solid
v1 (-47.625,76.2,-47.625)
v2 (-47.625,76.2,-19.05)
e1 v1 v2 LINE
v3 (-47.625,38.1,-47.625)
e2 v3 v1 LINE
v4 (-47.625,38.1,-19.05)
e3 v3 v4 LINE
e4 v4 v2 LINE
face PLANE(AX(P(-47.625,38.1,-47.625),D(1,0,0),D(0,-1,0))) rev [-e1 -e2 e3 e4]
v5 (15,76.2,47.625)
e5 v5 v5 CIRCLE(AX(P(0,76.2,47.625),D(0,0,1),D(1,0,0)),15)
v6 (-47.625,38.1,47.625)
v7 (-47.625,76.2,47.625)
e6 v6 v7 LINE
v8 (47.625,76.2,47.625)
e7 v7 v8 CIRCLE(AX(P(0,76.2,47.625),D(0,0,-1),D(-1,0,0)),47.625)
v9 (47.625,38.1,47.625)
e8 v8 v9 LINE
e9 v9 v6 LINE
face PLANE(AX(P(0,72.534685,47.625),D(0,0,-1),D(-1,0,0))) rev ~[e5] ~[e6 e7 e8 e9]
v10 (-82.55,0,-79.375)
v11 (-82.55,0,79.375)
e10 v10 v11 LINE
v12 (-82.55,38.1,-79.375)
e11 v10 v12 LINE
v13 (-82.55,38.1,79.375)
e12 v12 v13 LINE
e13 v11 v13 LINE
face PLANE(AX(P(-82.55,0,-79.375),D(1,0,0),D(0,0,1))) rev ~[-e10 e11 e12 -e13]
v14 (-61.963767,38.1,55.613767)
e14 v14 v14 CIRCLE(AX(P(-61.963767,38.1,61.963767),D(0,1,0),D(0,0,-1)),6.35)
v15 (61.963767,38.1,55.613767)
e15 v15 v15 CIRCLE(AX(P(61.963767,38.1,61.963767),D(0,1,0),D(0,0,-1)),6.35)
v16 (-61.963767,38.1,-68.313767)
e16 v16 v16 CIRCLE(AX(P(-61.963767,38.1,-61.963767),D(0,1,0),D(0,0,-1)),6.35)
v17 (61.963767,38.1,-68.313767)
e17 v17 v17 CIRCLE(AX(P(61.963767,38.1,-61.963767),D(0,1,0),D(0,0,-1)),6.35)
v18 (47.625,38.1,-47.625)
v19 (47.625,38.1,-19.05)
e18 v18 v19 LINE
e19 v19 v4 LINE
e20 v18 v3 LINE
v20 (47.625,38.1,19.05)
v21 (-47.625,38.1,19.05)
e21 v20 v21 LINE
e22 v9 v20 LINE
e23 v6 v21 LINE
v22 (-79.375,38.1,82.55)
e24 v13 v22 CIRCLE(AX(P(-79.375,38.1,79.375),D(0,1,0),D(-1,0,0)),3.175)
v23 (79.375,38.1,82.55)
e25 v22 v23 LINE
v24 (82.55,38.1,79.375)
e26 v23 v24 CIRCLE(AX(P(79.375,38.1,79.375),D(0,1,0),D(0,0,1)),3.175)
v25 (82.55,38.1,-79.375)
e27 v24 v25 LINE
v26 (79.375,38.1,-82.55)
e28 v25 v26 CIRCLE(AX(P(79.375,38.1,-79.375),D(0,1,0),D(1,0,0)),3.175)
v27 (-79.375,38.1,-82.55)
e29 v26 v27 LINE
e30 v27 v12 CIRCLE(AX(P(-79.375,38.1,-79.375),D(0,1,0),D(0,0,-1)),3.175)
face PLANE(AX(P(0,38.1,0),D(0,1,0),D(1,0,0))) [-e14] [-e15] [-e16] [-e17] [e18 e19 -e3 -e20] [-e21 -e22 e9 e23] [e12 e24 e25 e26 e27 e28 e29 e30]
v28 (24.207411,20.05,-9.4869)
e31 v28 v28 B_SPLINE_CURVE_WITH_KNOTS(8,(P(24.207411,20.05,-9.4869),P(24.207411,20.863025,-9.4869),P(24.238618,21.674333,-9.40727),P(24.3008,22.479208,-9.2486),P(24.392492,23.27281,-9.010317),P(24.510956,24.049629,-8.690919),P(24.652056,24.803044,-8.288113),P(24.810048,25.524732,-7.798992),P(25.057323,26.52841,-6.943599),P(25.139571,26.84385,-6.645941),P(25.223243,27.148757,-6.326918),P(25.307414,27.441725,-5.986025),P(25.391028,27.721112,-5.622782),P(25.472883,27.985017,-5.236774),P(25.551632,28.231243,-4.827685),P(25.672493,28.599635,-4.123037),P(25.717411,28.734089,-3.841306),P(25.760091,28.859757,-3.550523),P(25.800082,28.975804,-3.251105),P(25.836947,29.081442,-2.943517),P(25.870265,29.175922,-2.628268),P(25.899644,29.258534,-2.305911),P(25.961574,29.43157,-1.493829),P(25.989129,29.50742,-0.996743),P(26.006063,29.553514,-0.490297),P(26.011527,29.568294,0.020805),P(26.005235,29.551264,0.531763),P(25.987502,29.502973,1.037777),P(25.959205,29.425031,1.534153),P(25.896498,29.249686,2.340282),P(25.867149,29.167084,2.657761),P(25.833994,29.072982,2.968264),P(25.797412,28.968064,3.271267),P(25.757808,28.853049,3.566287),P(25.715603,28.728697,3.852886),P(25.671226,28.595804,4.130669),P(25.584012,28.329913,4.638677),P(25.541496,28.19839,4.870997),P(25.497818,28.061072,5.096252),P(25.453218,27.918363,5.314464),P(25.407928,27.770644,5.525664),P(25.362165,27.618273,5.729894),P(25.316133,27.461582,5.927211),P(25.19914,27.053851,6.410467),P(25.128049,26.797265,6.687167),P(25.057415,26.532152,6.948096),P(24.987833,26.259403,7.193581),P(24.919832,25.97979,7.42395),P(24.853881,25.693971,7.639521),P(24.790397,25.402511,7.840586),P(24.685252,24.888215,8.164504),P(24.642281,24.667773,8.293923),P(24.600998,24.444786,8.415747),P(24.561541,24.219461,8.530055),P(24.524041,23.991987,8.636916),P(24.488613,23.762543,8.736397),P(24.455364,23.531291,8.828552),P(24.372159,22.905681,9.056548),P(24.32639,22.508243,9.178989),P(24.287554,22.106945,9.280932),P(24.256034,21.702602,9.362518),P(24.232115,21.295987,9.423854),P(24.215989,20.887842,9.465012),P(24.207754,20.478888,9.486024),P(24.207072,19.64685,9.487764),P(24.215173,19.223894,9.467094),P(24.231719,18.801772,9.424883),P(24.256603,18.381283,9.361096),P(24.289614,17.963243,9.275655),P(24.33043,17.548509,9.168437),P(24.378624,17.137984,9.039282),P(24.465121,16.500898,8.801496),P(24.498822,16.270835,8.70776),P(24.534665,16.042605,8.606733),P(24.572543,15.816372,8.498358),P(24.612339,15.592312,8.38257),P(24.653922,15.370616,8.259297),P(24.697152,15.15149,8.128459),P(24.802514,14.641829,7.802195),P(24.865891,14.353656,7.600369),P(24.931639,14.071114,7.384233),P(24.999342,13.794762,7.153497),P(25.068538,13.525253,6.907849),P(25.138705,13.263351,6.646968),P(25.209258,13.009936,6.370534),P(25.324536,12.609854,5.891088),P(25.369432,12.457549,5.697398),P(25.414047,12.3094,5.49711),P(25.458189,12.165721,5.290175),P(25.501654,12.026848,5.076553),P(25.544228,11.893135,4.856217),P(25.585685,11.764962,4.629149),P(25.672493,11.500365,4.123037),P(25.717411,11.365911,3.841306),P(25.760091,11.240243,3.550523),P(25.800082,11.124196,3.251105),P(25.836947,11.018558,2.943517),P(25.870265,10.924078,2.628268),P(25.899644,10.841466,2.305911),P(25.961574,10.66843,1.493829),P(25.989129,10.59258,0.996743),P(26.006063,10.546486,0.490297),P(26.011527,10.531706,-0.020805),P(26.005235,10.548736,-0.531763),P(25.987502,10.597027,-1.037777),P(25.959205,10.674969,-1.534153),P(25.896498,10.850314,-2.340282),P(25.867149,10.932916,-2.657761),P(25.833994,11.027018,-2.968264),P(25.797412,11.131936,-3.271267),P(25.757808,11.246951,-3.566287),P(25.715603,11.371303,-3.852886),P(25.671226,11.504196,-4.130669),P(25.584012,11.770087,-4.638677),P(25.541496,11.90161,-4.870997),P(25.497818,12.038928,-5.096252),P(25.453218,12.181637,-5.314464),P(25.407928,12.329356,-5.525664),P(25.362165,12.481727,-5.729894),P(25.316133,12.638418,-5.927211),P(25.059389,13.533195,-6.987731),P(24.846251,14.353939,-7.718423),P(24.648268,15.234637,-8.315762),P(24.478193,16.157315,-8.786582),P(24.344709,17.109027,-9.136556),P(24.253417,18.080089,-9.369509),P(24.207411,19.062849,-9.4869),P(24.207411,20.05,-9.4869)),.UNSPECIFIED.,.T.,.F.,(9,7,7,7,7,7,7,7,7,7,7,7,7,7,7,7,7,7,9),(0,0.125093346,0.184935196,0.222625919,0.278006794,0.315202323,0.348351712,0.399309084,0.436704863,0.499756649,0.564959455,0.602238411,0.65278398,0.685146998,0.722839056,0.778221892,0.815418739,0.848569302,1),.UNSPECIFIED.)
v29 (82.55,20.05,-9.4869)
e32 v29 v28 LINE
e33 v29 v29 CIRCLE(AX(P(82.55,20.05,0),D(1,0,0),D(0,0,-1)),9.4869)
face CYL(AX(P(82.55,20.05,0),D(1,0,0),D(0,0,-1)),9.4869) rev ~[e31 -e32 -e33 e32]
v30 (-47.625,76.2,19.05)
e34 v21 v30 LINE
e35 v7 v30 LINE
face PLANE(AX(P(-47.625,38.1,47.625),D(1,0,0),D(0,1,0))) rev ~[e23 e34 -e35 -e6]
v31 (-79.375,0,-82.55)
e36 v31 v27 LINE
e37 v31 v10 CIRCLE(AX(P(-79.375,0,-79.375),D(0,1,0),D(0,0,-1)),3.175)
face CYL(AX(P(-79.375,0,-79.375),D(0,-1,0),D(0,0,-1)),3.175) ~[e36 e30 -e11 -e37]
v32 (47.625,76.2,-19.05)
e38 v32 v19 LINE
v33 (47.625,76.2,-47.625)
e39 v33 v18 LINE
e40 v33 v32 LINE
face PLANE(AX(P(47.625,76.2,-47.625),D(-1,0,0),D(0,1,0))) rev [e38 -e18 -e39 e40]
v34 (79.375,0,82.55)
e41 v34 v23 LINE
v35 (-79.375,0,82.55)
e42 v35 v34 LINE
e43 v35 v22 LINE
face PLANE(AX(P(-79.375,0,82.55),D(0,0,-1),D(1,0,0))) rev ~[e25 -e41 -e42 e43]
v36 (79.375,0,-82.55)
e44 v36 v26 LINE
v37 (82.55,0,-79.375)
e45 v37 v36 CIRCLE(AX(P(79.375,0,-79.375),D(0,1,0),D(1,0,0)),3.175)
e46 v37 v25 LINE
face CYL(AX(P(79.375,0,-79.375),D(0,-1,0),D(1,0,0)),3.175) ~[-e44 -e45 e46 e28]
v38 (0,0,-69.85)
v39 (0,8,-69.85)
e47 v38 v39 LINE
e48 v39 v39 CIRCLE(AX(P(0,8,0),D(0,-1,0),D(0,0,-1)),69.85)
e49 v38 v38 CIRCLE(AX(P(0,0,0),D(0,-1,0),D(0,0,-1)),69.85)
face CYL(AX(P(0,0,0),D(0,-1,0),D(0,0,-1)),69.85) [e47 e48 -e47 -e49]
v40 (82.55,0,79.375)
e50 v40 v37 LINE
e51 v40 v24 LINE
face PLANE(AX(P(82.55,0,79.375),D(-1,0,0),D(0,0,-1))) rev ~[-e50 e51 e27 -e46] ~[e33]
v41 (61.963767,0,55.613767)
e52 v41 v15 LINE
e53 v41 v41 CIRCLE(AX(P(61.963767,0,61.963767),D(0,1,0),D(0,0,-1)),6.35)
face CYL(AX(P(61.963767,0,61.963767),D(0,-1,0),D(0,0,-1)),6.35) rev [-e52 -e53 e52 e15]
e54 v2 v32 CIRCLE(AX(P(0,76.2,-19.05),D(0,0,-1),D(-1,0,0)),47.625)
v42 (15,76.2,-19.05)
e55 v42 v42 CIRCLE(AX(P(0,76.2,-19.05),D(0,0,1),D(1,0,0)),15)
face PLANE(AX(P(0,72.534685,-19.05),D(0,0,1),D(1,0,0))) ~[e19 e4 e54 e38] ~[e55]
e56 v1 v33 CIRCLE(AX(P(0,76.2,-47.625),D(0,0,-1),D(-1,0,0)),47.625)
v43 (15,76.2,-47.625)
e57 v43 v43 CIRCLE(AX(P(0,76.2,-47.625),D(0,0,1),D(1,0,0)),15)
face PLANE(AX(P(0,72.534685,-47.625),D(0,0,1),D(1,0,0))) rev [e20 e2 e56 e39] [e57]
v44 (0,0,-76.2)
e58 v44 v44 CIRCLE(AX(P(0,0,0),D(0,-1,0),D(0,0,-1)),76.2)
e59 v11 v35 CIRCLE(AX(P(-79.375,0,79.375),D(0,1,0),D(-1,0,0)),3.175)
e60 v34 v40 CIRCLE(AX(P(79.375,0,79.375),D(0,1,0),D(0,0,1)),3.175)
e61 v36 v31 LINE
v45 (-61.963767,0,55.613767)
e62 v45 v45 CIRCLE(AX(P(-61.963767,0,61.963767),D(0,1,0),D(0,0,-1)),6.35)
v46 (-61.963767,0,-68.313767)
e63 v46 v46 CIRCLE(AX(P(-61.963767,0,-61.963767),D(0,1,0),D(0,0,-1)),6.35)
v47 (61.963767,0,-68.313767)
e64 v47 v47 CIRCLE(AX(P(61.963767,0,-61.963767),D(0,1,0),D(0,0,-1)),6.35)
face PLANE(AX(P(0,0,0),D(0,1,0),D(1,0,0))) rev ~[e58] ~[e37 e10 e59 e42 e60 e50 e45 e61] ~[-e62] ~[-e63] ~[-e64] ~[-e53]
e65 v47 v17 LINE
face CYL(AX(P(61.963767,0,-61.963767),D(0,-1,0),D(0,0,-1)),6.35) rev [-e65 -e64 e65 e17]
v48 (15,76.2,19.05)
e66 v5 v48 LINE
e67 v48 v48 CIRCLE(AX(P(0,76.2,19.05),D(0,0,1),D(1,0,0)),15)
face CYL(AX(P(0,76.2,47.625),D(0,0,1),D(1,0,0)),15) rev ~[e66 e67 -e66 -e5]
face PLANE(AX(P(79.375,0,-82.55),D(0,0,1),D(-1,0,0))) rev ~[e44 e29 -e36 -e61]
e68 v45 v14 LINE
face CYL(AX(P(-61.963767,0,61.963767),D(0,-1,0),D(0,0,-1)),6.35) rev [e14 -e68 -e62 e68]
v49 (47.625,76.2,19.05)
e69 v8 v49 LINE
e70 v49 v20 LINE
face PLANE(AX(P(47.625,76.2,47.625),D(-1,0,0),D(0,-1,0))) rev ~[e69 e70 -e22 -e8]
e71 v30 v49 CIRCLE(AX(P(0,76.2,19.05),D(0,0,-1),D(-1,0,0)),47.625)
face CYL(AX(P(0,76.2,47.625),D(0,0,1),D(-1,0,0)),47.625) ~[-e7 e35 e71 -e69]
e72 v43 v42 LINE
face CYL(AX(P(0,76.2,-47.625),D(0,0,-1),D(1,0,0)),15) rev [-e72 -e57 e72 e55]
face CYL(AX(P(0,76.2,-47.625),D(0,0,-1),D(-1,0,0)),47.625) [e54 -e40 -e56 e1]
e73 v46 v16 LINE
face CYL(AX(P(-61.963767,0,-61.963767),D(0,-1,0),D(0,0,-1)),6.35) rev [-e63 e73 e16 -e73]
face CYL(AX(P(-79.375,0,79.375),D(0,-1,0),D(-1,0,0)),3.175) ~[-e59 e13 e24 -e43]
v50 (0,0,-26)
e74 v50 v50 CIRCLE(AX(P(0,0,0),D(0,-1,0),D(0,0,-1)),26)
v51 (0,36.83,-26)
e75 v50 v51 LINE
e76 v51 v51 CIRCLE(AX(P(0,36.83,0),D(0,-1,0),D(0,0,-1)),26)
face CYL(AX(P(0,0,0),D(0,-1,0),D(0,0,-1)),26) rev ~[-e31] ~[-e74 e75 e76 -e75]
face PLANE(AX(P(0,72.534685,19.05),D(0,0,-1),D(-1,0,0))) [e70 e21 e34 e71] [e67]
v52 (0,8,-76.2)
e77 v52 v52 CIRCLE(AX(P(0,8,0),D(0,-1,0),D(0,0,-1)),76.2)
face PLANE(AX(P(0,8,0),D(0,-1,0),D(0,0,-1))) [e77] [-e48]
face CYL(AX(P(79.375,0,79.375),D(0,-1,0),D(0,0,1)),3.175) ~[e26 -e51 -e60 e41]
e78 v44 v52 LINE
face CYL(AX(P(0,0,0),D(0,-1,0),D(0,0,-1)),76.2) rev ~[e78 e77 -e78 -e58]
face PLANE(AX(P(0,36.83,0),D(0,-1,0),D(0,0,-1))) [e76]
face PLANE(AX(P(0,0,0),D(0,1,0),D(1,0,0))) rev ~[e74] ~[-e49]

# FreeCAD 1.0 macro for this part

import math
import FreeCAD as App
import Part
import Sketcher

V = App.Vector
Q = App.Units.Quantity

doc = App.newDocument("Part")
body = doc.addObject("PartDesign::Body", "Body")

# Sketch on XZ plane
sketch1 = doc.addObject("Sketcher::SketchObject", "Sketch")
body.addObject(sketch1)
sketch1.AttachmentSupport = (doc.XZ_Plane, [""])
sketch1.MapMode = "FlatFace"
sketch1.addGeometry([
    Part.LineSegment(V(-79.4, 82.5, 0), V(79.4, 82.5, 0)),  # 0
    Part.ArcOfCircle(Part.Circle(V(79.4, 79.4, 0), V(0, 0, 1), 3.2), math.radians(0), math.radians(90)),  # 1
    Part.LineSegment(V(82.5, 79.4, 0), V(82.5, -79.4, 0)),  # 2
    Part.ArcOfCircle(Part.Circle(V(79.4, -79.4, 0), V(0, 0, 1), 3.2), math.radians(-90), math.radians(0)),  # 3
    Part.LineSegment(V(79.4, -82.5, 0), V(-79.4, -82.5, 0)),  # 4
    Part.ArcOfCircle(Part.Circle(V(-79.4, -79.4, 0), V(0, 0, 1), 3.2), math.radians(-180), math.radians(-90)),  # 5
    Part.LineSegment(V(-82.5, -79.4, 0), V(-82.5, 79.4, 0)),  # 6
    Part.ArcOfCircle(Part.Circle(V(-79.4, 79.4, 0), V(0, 0, 1), 3.2), math.radians(90), math.radians(180)),  # 7
    Part.Circle(V(-62, 62, 0), V(0, 0, 1), 6.3),  # 8
    Part.Circle(V(62, 62, 0), V(0, 0, 1), 6.3),  # 9
    Part.Circle(V(-62, -62, 0), V(0, 0, 1), 6.3),  # 10
    Part.Circle(V(62, -62, 0), V(0, 0, 1), 6.3),  # 11
], False)
sketch1.addConstraint([
    Sketcher.Constraint("Tangent", 0, 2, 1, 2),
    Sketcher.Constraint("Tangent", 1, 1, 2, 1),
    Sketcher.Constraint("Tangent", 2, 2, 3, 2),
    Sketcher.Constraint("Tangent", 3, 1, 4, 1),
    Sketcher.Constraint("Tangent", 4, 2, 5, 2),
    Sketcher.Constraint("Tangent", 5, 1, 6, 1),
    Sketcher.Constraint("Tangent", 6, 2, 7, 2),
    Sketcher.Constraint("Tangent", 7, 1, 0, 1),
    Sketcher.Constraint("Horizontal", 0),
    Sketcher.Constraint("Vertical", 2),
    Sketcher.Constraint("Horizontal", 4),
    Sketcher.Constraint("Vertical", 6),
    Sketcher.Constraint("Equal", 1, 3),
    Sketcher.Constraint("Equal", 3, 5),
    Sketcher.Constraint("Equal", 5, 7),
    Sketcher.Constraint("Equal", 8, 9),
    Sketcher.Constraint("Equal", 9, 10),
    Sketcher.Constraint("Equal", 10, 11),
    Sketcher.Constraint("Symmetric", 1, 3, 5, 3, -1, 1),
    Sketcher.Constraint("Symmetric", 9, 3, 10, 3, -1, 1),
    Sketcher.Constraint("Symmetric", 8, 3, 11, 3, -1, 1),
    Sketcher.Constraint("Symmetric", 8, 3, 9, 3, -2),
    Sketcher.Constraint("Equal", 4, 2),
    Sketcher.Constraint("Diameter", 8, Q("0.5 in")),
    Sketcher.Constraint("Radius", 1, Q("0.125 in")),
    Sketcher.Constraint("DistanceX", 0, 1, 0, 2, Q("6.25 in")),
    Sketcher.Constraint("DistanceX", 8, 3, -1, 1, Q("61.963767 mm")),
    Sketcher.Constraint("DistanceY", -1, 1, 8, 3, Q("61.963767 mm")),
])
pad1 = doc.addObject("PartDesign::Pad", "Pad")
body.addObject(pad1)
pad1.Profile = sketch1
pad1.Length = Q("1.5 in")
pad1.Reversed = True

# Sketch on XY plane
sketch2 = doc.addObject("Sketcher::SketchObject", "Sketch001")
body.addObject(sketch2)
sketch2.AttachmentSupport = (doc.XY_Plane, [""])
sketch2.MapMode = "FlatFace"
sketch2.AttachmentOffset = App.Placement(V(0, 0, 1.875 * 25.4), App.Rotation())
sketch2.addGeometry([
    Part.LineSegment(V(-48, 76, 0), V(-48, 38, 0)),  # 0
    Part.LineSegment(V(-48, 38, 0), V(48, 38, 0)),  # 1
    Part.LineSegment(V(48, 38, 0), V(48, 76, 0)),  # 2
    Part.ArcOfCircle(Part.Circle(V(0, 76, 0), V(0, 0, 1), 48), math.radians(0), math.radians(180)),  # 3
    Part.Circle(V(0, 76, 0), V(0, 0, 1), 15),  # 4
], False)
sketch2.addConstraint([
    Sketcher.Constraint("Coincident", 0, 2, 1, 1),
    Sketcher.Constraint("Coincident", 1, 2, 2, 1),
    Sketcher.Constraint("Tangent", 2, 2, 3, 1),
    Sketcher.Constraint("Tangent", 3, 2, 0, 1),
    Sketcher.Constraint("Vertical", 0),
    Sketcher.Constraint("Horizontal", 1),
    Sketcher.Constraint("Vertical", 2),
    Sketcher.Constraint("Coincident", 4, 3, 3, 3),
    Sketcher.Constraint("PointOnObject", 3, 3, -2),
    Sketcher.Constraint("DistanceY", 0, 2, 0, 1, Q("1.5 in")),
    Sketcher.Constraint("DistanceY", -1, 1, 3, 3, Q("3 in")),
    Sketcher.Constraint("Radius", 3, Q("1.875 in")),
    Sketcher.Constraint("Diameter", 4, Q("30 mm")),
])
pad2 = doc.addObject("PartDesign::Pad", "Pad001")
body.addObject(pad2)
pad2.Profile = sketch2
pad2.Length = Q("1.125 in")
pad2.Reversed = True
doc.recompute()

mirrored = doc.addObject("PartDesign::Mirrored", "Mirrored")
body.addObject(mirrored)
mirrored.Originals = [pad2]
mirrored.MirrorPlane = (doc.XY_Plane, [""])
body.Tip = mirrored

# Sketch on XZ plane
sketch3 = doc.addObject("Sketcher::SketchObject", "Sketch002")
body.addObject(sketch3)
sketch3.AttachmentSupport = (doc.XZ_Plane, [""])
sketch3.MapMode = "FlatFace"
sketch3.addGeometry(Part.Circle(V(0, 0, 0), V(0, 0, 1), 26), False)
sketch3.addConstraint([
    Sketcher.Constraint("Coincident", 0, 3, -1, 1),
    Sketcher.Constraint("Diameter", 0, Q("52 mm")),
])
pocket1 = doc.addObject("PartDesign::Pocket", "Pocket")
body.addObject(pocket1)
pocket1.Profile = sketch3
pocket1.Length = Q("1.45 in")

# Sketch on XZ plane
sketch4 = doc.addObject("Sketcher::SketchObject", "Sketch003")
body.addObject(sketch4)
sketch4.AttachmentSupport = (doc.XZ_Plane, [""])
sketch4.MapMode = "FlatFace"
sketch4.addGeometry([
    Part.Circle(V(0, 0, 0), V(0, 0, 1), 76),
    Part.Circle(V(0, 0, 0), V(0, 0, 1), 70),
], False)
sketch4.addConstraint([
    Sketcher.Constraint("Coincident", 0, 3, -1, 1),
    Sketcher.Constraint("Coincident", 1, 3, -1, 1),
    Sketcher.Constraint("Diameter", 0, Q("6 in")),
    Sketcher.Constraint("Diameter", 1, Q("5.5 in")),
])
pocket2 = doc.addObject("PartDesign::Pocket", "Pocket001")
body.addObject(pocket2)
pocket2.Profile = sketch4
pocket2.Length = 8

# Sketch on YZ plane
sketch5 = doc.addObject("Sketcher::SketchObject", "Sketch004")
body.addObject(sketch5)
sketch5.AttachmentSupport = (doc.YZ_Plane, [""])
sketch5.MapMode = "FlatFace"
sketch5.AttachmentOffset = App.Placement(V(0, 0, 3.25 * 25.4), App.Rotation())
sketch5.addGeometry(Part.Circle(V(20, 0, 0), V(0, 0, 1), 9), False)
sketch5.addConstraint([
    Sketcher.Constraint("PointOnObject", 0, 3, -1),
    Sketcher.Constraint("Diameter", 0, Q("0.747 in")),
    Sketcher.Constraint("DistanceX", -1, 1, 0, 3, Q("20.05 mm")),
])
pocket3 = doc.addObject("PartDesign::Pocket", "Pocket002")
body.addObject(pocket3)
pocket3.Profile = sketch5
pocket3.Length = 58.342589

doc.recompute()
